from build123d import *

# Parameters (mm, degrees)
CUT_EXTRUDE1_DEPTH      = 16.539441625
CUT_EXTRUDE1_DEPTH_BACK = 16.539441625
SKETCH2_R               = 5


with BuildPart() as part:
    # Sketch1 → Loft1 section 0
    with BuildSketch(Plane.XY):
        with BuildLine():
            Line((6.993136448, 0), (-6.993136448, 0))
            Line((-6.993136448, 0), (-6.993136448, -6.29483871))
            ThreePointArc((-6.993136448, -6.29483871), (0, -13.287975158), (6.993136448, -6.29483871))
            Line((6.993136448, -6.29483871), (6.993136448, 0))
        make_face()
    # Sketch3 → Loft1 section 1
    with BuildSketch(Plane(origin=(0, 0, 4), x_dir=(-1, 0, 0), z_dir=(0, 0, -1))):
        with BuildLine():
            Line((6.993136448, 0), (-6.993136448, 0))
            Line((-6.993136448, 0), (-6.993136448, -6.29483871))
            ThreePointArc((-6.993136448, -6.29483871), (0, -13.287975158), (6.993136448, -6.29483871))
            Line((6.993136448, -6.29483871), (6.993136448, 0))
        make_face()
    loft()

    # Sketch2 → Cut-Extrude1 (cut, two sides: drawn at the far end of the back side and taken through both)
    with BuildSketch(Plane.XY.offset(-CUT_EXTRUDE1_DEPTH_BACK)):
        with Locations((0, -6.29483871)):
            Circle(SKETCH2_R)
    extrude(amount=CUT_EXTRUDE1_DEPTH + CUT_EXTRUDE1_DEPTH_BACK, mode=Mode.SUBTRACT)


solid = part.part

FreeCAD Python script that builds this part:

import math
import FreeCAD as App
import Part
import Sketcher

doc = App.newDocument("Part")
params = doc.addObject("Spreadsheet::Sheet", "Params")
for row, (alias, value) in enumerate([
    ("sketch3_diameter", "10 mm"),
], start=1):
    params.set(f"A{row}", alias)
    params.set(f"B{row}", "=" + value)
    params.setAlias(f"B{row}", alias)

body = doc.addObject("PartDesign::Body", "Body")

# Sketch on XY plane
sketch1 = doc.addObject("Sketcher::SketchObject", "Sketch")
body.addObject(sketch1)
sketch1.AttachmentSupport = (doc.XY_Plane, [""])
sketch1.MapMode = "FlatFace"
sketch1.addGeometry(Part.LineSegment(App.Vector(7, 0, 0), App.Vector(-7, 0, 0)), False)
sketch1.addGeometry(Part.LineSegment(App.Vector(-7, 0, 0), App.Vector(-7, -6, 0)), False)
sketch1.addGeometry(Part.ArcOfCircle(Part.Circle(App.Vector(0, -6, 0), App.Vector(0, 0, 1), 7), math.radians(180), math.radians(360)), False)
sketch1.addGeometry(Part.LineSegment(App.Vector(7, -6, 0), App.Vector(7, 0, 0)), False)
sketch1.addConstraint(Sketcher.Constraint("Coincident", 0, 2, 1, 1))
sketch1.addConstraint(Sketcher.Constraint("Tangent", 1, 2, 2, 1))
sketch1.addConstraint(Sketcher.Constraint("Tangent", 2, 2, 3, 1))
sketch1.addConstraint(Sketcher.Constraint("Coincident", 3, 2, 0, 1))
sketch1.addConstraint(Sketcher.Constraint("Horizontal", 0))
sketch1.addConstraint(Sketcher.Constraint("Vertical", 1))
sketch1.addConstraint(Sketcher.Constraint("Vertical", 3))
sketch1.addConstraint(Sketcher.Constraint("Symmetric", 0, 2, 3, 2, -1, 1))
sketch1.addConstraint(Sketcher.Constraint("Radius", 2, 6.993136))
sketch1.addConstraint(Sketcher.Constraint("DistanceY", 1, 2, 1, 1, 6.294839))

# Sketch on XY plane
sketch2 = doc.addObject("Sketcher::SketchObject", "Sketch001")
body.addObject(sketch2)
sketch2.AttachmentSupport = (doc.XY_Plane, [""])
sketch2.MapMode = "FlatFace"
sketch2.AttachmentOffset = App.Placement(App.Vector(0, 0, 4), App.Rotation())
sketch2.addGeometry(Part.LineSegment(App.Vector(-7, 0, 0), App.Vector(7, 0, 0)), False)
sketch2.addGeometry(Part.LineSegment(App.Vector(7, 0, 0), App.Vector(7, -6, 0)), False)
sketch2.addGeometry(Part.ArcOfCircle(Part.Circle(App.Vector(0, -6, 0), App.Vector(0, 0, 1), 7), math.radians(180), math.radians(360)), False)
sketch2.addGeometry(Part.LineSegment(App.Vector(-7, -6, 0), App.Vector(-7, 0, 0)), False)
sketch2.addConstraint(Sketcher.Constraint("Coincident", 0, 2, 1, 1))
sketch2.addConstraint(Sketcher.Constraint("Tangent", 1, 2, 2, 2))
sketch2.addConstraint(Sketcher.Constraint("Tangent", 2, 1, 3, 1))
sketch2.addConstraint(Sketcher.Constraint("Coincident", 3, 2, 0, 1))
sketch2.addConstraint(Sketcher.Constraint("Horizontal", 0))
sketch2.addConstraint(Sketcher.Constraint("Vertical", 1))
sketch2.addConstraint(Sketcher.Constraint("Vertical", 3))
sketch2.addConstraint(Sketcher.Constraint("Symmetric", 0, 2, 3, 2, -1, 1))
sketch2.addConstraint(Sketcher.Constraint("Radius", 2, 6.993136))
sketch2.addConstraint(Sketcher.Constraint("DistanceY", 1, 2, 1, 1, 6.294839))

additiveloft = doc.addObject("PartDesign::AdditiveLoft", "AdditiveLoft")
body.addObject(additiveloft)
additiveloft.Profile = sketch1
additiveloft.Sections = [sketch2]

# Sketch on XY plane
sketch3 = doc.addObject("Sketcher::SketchObject", "Sketch002")
body.addObject(sketch3)
sketch3.AttachmentSupport = (doc.XY_Plane, [""])
sketch3.MapMode = "FlatFace"
sketch3.addGeometry(Part.Circle(App.Vector(0, -6, 0), App.Vector(0, 0, 1), 5), False)
sketch3.addConstraint(Sketcher.Constraint("PointOnObject", 0, 3, -2))
sketch3.addConstraint(Sketcher.Constraint("Diameter", 0, 10.0))
sketch3.addConstraint(Sketcher.Constraint("DistanceY", 0, 3, -1, 1, 6.294839))
sketch3.setExpression("Constraints[1]", "Params.sketch3_diameter")
pocket1 = doc.addObject("PartDesign::Pocket", "Pocket")
body.addObject(pocket1)
pocket1.Profile = sketch3
pocket1.Type = "ThroughAll"
pocket1.Midplane = True

doc.recompute()
